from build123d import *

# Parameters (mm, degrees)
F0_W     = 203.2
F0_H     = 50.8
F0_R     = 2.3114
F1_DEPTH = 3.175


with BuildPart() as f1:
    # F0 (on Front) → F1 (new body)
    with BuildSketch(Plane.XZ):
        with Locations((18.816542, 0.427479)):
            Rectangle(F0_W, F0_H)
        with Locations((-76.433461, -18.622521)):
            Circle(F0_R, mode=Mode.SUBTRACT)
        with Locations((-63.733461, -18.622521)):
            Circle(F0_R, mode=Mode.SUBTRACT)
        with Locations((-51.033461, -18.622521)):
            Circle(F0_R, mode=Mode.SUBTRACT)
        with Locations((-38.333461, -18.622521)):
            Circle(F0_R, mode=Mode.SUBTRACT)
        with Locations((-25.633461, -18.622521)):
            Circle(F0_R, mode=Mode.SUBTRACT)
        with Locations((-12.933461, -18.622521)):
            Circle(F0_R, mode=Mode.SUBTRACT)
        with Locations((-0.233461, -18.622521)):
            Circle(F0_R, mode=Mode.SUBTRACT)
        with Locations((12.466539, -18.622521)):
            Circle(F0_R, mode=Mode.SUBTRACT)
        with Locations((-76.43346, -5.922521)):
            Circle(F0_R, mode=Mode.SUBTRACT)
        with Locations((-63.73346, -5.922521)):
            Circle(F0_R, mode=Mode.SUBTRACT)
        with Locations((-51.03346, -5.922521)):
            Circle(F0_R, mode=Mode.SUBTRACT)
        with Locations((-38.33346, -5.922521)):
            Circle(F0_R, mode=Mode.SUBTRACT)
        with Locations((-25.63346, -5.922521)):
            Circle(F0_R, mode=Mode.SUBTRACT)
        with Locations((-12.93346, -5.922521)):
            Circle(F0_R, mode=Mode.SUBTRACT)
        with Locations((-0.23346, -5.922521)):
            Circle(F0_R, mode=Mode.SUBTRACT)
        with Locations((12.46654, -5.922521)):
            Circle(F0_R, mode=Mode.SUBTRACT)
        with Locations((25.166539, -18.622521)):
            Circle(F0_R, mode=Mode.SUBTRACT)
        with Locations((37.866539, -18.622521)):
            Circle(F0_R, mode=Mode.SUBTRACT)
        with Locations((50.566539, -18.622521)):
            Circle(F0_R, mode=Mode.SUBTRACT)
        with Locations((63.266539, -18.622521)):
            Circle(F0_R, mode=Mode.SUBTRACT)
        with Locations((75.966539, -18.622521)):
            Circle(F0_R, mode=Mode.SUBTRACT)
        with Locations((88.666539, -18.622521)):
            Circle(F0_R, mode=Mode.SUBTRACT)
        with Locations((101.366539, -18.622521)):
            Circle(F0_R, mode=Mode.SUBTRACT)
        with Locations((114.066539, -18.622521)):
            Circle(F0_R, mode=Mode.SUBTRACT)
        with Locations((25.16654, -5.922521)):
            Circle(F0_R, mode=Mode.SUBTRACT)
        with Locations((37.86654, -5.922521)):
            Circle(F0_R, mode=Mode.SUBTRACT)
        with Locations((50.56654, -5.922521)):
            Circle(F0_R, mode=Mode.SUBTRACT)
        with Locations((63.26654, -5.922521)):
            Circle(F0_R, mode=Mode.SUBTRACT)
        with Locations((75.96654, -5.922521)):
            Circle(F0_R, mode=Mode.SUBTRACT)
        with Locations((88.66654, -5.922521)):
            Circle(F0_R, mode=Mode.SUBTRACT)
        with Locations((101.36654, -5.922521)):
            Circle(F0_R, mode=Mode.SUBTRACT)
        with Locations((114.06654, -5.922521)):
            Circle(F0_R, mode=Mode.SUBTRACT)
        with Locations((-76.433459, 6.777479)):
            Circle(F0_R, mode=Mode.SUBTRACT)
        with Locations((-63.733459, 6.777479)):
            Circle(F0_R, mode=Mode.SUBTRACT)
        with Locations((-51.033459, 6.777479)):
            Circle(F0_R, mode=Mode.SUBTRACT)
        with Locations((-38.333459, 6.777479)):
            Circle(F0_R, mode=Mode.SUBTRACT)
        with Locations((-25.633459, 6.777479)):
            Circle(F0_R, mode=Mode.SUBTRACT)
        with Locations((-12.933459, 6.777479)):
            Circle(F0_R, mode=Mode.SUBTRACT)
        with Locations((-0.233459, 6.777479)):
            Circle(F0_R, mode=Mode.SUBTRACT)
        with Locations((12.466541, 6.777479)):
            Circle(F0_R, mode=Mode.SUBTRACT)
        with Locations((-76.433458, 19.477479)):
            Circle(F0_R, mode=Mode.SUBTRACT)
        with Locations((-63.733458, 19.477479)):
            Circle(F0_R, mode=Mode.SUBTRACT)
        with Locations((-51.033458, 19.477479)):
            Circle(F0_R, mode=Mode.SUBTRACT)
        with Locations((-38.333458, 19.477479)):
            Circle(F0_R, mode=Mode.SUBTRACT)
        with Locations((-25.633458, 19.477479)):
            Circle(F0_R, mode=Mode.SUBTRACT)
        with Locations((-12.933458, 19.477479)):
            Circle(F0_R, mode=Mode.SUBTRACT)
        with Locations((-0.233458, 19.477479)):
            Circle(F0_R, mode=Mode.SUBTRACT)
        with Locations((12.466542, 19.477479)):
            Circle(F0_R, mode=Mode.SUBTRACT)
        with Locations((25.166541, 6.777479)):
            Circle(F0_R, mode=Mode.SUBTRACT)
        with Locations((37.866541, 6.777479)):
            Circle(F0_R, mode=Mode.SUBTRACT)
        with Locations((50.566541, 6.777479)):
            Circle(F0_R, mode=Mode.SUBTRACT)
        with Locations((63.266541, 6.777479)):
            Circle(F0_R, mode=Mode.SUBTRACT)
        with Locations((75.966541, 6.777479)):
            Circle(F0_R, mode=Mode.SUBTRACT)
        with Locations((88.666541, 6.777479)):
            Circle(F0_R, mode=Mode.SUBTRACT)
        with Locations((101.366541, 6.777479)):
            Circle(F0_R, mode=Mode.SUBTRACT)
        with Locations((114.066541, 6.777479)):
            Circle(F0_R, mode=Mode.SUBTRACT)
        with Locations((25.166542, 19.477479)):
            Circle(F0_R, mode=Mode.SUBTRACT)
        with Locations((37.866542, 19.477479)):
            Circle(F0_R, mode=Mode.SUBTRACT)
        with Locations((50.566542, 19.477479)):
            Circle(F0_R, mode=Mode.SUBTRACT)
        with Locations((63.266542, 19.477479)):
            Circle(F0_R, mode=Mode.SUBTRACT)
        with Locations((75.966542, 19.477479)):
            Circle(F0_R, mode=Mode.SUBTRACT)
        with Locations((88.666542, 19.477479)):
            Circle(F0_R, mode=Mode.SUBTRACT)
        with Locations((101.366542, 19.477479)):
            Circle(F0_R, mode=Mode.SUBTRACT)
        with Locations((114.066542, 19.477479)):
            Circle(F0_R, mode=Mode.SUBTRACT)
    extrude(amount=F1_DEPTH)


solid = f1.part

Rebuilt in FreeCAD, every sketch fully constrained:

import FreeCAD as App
import Part
import Sketcher
from FreeCAD import Vector
Q = App.Units.Quantity


def add_polygon(sketch, points):
    """Adds a closed chain of lines whose ends are joined by coincident constraints."""
    first, n = sketch.GeometryCount, len(points)
    for a, b in zip(points, points[1:] + points[:1]):
        sketch.addGeometry(Part.LineSegment(App.Vector(*a, 0), App.Vector(*b, 0)), False)
    for i in range(n):
        sketch.addConstraint(Sketcher.Constraint("Coincident", first + i, 2, first + (i + 1) % n, 1))

doc = App.newDocument("Part")
body = doc.addObject("PartDesign::Body", "Body")

sketch1 = body.newObject("Sketcher::SketchObject", "Sketch")
sketch1.AttachmentSupport = (doc.getObject("XZ_Plane"), [""])
sketch1.MapMode = "FlatFace"
add_polygon(sketch1, [(-82.783458, 25.827479), (-82.783458, -24.972521), (120.416542, -24.972521), (120.416542, 25.827479)])
sketch1.addGeometry(Part.Circle(Vector(-76.433461, -18.622521, 0), Vector(0, 0, 1), 2.3114), False)
sketch1.addGeometry(Part.Circle(Vector(-63.733461, -18.622521, 0), Vector(0, 0, 1), 2.3114), False)
sketch1.addGeometry(Part.Circle(Vector(-51.033461, -18.622521, 0), Vector(0, 0, 1), 2.3114), False)
sketch1.addGeometry(Part.Circle(Vector(-38.333461, -18.622521, 0), Vector(0, 0, 1), 2.3114), False)
sketch1.addGeometry(Part.Circle(Vector(-25.633461, -18.622521, 0), Vector(0, 0, 1), 2.3114), False)
sketch1.addGeometry(Part.Circle(Vector(-12.933461, -18.622521, 0), Vector(0, 0, 1), 2.3114), False)
sketch1.addGeometry(Part.Circle(Vector(-0.233461, -18.622521, 0), Vector(0, 0, 1), 2.3114), False)
sketch1.addGeometry(Part.Circle(Vector(12.466539, -18.622521, 0), Vector(0, 0, 1), 2.3114), False)
sketch1.addGeometry(Part.Circle(Vector(-76.43346, -5.922521, 0), Vector(0, 0, 1), 2.3114), False)
sketch1.addGeometry(Part.Circle(Vector(-63.73346, -5.922521, 0), Vector(0, 0, 1), 2.3114), False)
sketch1.addGeometry(Part.Circle(Vector(-51.03346, -5.922521, 0), Vector(0, 0, 1), 2.3114), False)
sketch1.addGeometry(Part.Circle(Vector(-38.33346, -5.922521, 0), Vector(0, 0, 1), 2.3114), False)
sketch1.addGeometry(Part.Circle(Vector(-25.63346, -5.922521, 0), Vector(0, 0, 1), 2.3114), False)
sketch1.addGeometry(Part.Circle(Vector(-12.93346, -5.922521, 0), Vector(0, 0, 1), 2.3114), False)
sketch1.addGeometry(Part.Circle(Vector(-0.23346, -5.922521, 0), Vector(0, 0, 1), 2.3114), False)
sketch1.addGeometry(Part.Circle(Vector(12.46654, -5.922521, 0), Vector(0, 0, 1), 2.3114), False)
sketch1.addGeometry(Part.Circle(Vector(25.166539, -18.622521, 0), Vector(0, 0, 1), 2.3114), False)
sketch1.addGeometry(Part.Circle(Vector(37.866539, -18.622521, 0), Vector(0, 0, 1), 2.3114), False)
sketch1.addGeometry(Part.Circle(Vector(50.566539, -18.622521, 0), Vector(0, 0, 1), 2.3114), False)
sketch1.addGeometry(Part.Circle(Vector(63.266539, -18.622521, 0), Vector(0, 0, 1), 2.3114), False)
sketch1.addGeometry(Part.Circle(Vector(75.966539, -18.622521, 0), Vector(0, 0, 1), 2.3114), False)
sketch1.addGeometry(Part.Circle(Vector(88.666539, -18.622521, 0), Vector(0, 0, 1), 2.3114), False)
sketch1.addGeometry(Part.Circle(Vector(101.366539, -18.622521, 0), Vector(0, 0, 1), 2.3114), False)
sketch1.addGeometry(Part.Circle(Vector(114.066539, -18.622521, 0), Vector(0, 0, 1), 2.3114), False)
sketch1.addGeometry(Part.Circle(Vector(25.16654, -5.922521, 0), Vector(0, 0, 1), 2.3114), False)
sketch1.addGeometry(Part.Circle(Vector(37.86654, -5.922521, 0), Vector(0, 0, 1), 2.3114), False)
sketch1.addGeometry(Part.Circle(Vector(50.56654, -5.922521, 0), Vector(0, 0, 1), 2.3114), False)
sketch1.addGeometry(Part.Circle(Vector(63.26654, -5.922521, 0), Vector(0, 0, 1), 2.3114), False)
sketch1.addGeometry(Part.Circle(Vector(75.96654, -5.922521, 0), Vector(0, 0, 1), 2.3114), False)
sketch1.addGeometry(Part.Circle(Vector(88.66654, -5.922521, 0), Vector(0, 0, 1), 2.3114), False)
sketch1.addGeometry(Part.Circle(Vector(101.36654, -5.922521, 0), Vector(0, 0, 1), 2.3114), False)
sketch1.addGeometry(Part.Circle(Vector(114.06654, -5.922521, 0), Vector(0, 0, 1), 2.3114), False)
sketch1.addGeometry(Part.Circle(Vector(-76.433459, 6.777479, 0), Vector(0, 0, 1), 2.3114), False)
sketch1.addGeometry(Part.Circle(Vector(-63.733459, 6.777479, 0), Vector(0, 0, 1), 2.3114), False)
sketch1.addGeometry(Part.Circle(Vector(-51.033459, 6.777479, 0), Vector(0, 0, 1), 2.3114), False)
sketch1.addGeometry(Part.Circle(Vector(-38.333459, 6.777479, 0), Vector(0, 0, 1), 2.3114), False)
sketch1.addGeometry(Part.Circle(Vector(-25.633459, 6.777479, 0), Vector(0, 0, 1), 2.3114), False)
sketch1.addGeometry(Part.Circle(Vector(-12.933459, 6.777479, 0), Vector(0, 0, 1), 2.3114), False)
sketch1.addGeometry(Part.Circle(Vector(-0.233459, 6.777479, 0), Vector(0, 0, 1), 2.3114), False)
sketch1.addGeometry(Part.Circle(Vector(12.466541, 6.777479, 0), Vector(0, 0, 1), 2.3114), False)
sketch1.addGeometry(Part.Circle(Vector(-76.433458, 19.477479, 0), Vector(0, 0, 1), 2.3114), False)
sketch1.addGeometry(Part.Circle(Vector(-63.733458, 19.477479, 0), Vector(0, 0, 1), 2.3114), False)
sketch1.addGeometry(Part.Circle(Vector(-51.033458, 19.477479, 0), Vector(0, 0, 1), 2.3114), False)
sketch1.addGeometry(Part.Circle(Vector(-38.333458, 19.477479, 0), Vector(0, 0, 1), 2.3114), False)
sketch1.addGeometry(Part.Circle(Vector(-25.633458, 19.477479, 0), Vector(0, 0, 1), 2.3114), False)
sketch1.addGeometry(Part.Circle(Vector(-12.933458, 19.477479, 0), Vector(0, 0, 1), 2.3114), False)
sketch1.addGeometry(Part.Circle(Vector(-0.233458, 19.477479, 0), Vector(0, 0, 1), 2.3114), False)
sketch1.addGeometry(Part.Circle(Vector(12.466542, 19.477479, 0), Vector(0, 0, 1), 2.3114), False)
sketch1.addGeometry(Part.Circle(Vector(25.166541, 6.777479, 0), Vector(0, 0, 1), 2.3114), False)
sketch1.addGeometry(Part.Circle(Vector(37.866541, 6.777479, 0), Vector(0, 0, 1), 2.3114), False)
sketch1.addGeometry(Part.Circle(Vector(50.566541, 6.777479, 0), Vector(0, 0, 1), 2.3114), False)
sketch1.addGeometry(Part.Circle(Vector(63.266541, 6.777479, 0), Vector(0, 0, 1), 2.3114), False)
sketch1.addGeometry(Part.Circle(Vector(75.966541, 6.777479, 0), Vector(0, 0, 1), 2.3114), False)
sketch1.addGeometry(Part.Circle(Vector(88.666541, 6.777479, 0), Vector(0, 0, 1), 2.3114), False)
sketch1.addGeometry(Part.Circle(Vector(101.366541, 6.777479, 0), Vector(0, 0, 1), 2.3114), False)
sketch1.addGeometry(Part.Circle(Vector(114.066541, 6.777479, 0), Vector(0, 0, 1), 2.3114), False)
sketch1.addGeometry(Part.Circle(Vector(25.166542, 19.477479, 0), Vector(0, 0, 1), 2.3114), False)
sketch1.addGeometry(Part.Circle(Vector(37.866542, 19.477479, 0), Vector(0, 0, 1), 2.3114), False)
sketch1.addGeometry(Part.Circle(Vector(50.566542, 19.477479, 0), Vector(0, 0, 1), 2.3114), False)
sketch1.addGeometry(Part.Circle(Vector(63.266542, 19.477479, 0), Vector(0, 0, 1), 2.3114), False)
sketch1.addGeometry(Part.Circle(Vector(75.966542, 19.477479, 0), Vector(0, 0, 1), 2.3114), False)
sketch1.addGeometry(Part.Circle(Vector(88.666542, 19.477479, 0), Vector(0, 0, 1), 2.3114), False)
sketch1.addGeometry(Part.Circle(Vector(101.366542, 19.477479, 0), Vector(0, 0, 1), 2.3114), False)
sketch1.addGeometry(Part.Circle(Vector(114.066542, 19.477479, 0), Vector(0, 0, 1), 2.3114), False)
sketch1.addConstraint([
    Sketcher.Constraint("Vertical", 0),
    Sketcher.Constraint("Horizontal", 1),
    Sketcher.Constraint("Vertical", 2),
    Sketcher.Constraint("Horizontal", 3),
    Sketcher.Constraint("Equal", 4, 5),
    Sketcher.Constraint("Equal", 5, 6),
    Sketcher.Constraint("Equal", 6, 7),
    Sketcher.Constraint("Equal", 7, 8),
    Sketcher.Constraint("Equal", 8, 9),
    Sketcher.Constraint("Equal", 9, 10),
    Sketcher.Constraint("Equal", 10, 11),
    Sketcher.Constraint("Equal", 11, 12),
    Sketcher.Constraint("Equal", 12, 13),
    Sketcher.Constraint("Equal", 13, 14),
    Sketcher.Constraint("Equal", 14, 15),
    Sketcher.Constraint("Equal", 15, 16),
    Sketcher.Constraint("Equal", 16, 17),
    Sketcher.Constraint("Equal", 17, 18),
    Sketcher.Constraint("Equal", 18, 19),
    Sketcher.Constraint("Equal", 19, 20),
    Sketcher.Constraint("Equal", 20, 21),
    Sketcher.Constraint("Equal", 21, 22),
    Sketcher.Constraint("Equal", 22, 23),
    Sketcher.Constraint("Equal", 23, 24),
    Sketcher.Constraint("Equal", 24, 25),
    Sketcher.Constraint("Equal", 25, 26),
    Sketcher.Constraint("Equal", 26, 27),
    Sketcher.Constraint("Equal", 27, 28),
    Sketcher.Constraint("Equal", 28, 29),
    Sketcher.Constraint("Equal", 29, 30),
    Sketcher.Constraint("Equal", 30, 31),
    Sketcher.Constraint("Equal", 31, 32),
    Sketcher.Constraint("Equal", 32, 33),
    Sketcher.Constraint("Equal", 33, 34),
    Sketcher.Constraint("Equal", 34, 35),
    Sketcher.Constraint("Equal", 35, 36),
    Sketcher.Constraint("Equal", 36, 37),
    Sketcher.Constraint("Equal", 37, 38),
    Sketcher.Constraint("Equal", 38, 39),
    Sketcher.Constraint("Equal", 39, 40),
    Sketcher.Constraint("Equal", 40, 41),
    Sketcher.Constraint("Equal", 41, 42),
    Sketcher.Constraint("Equal", 42, 43),
    Sketcher.Constraint("Equal", 43, 44),
    Sketcher.Constraint("Equal", 44, 45),
    Sketcher.Constraint("Equal", 45, 46),
    Sketcher.Constraint("Equal", 46, 47),
    Sketcher.Constraint("Equal", 47, 48),
    Sketcher.Constraint("Equal", 48, 49),
    Sketcher.Constraint("Equal", 49, 50),
    Sketcher.Constraint("Equal", 50, 51),
    Sketcher.Constraint("Equal", 51, 52),
    Sketcher.Constraint("Equal", 52, 53),
    Sketcher.Constraint("Equal", 53, 54),
    Sketcher.Constraint("Equal", 54, 55),
    Sketcher.Constraint("Equal", 55, 56),
    Sketcher.Constraint("Equal", 56, 57),
    Sketcher.Constraint("Equal", 57, 58),
    Sketcher.Constraint("Equal", 58, 59),
    Sketcher.Constraint("Equal", 59, 60),
    Sketcher.Constraint("Equal", 60, 61),
    Sketcher.Constraint("Equal", 61, 62),
    Sketcher.Constraint("Equal", 62, 63),
    Sketcher.Constraint("Equal", 63, 64),
    Sketcher.Constraint("Equal", 64, 65),
    Sketcher.Constraint("Equal", 65, 66),
    Sketcher.Constraint("Equal", 66, 67),
    Sketcher.Constraint("Horizontal", 4, 3, 5, 3),
    Sketcher.Constraint("Horizontal", 5, 3, 6, 3),
    Sketcher.Constraint("Horizontal", 6, 3, 7, 3),
    Sketcher.Constraint("Horizontal", 7, 3, 8, 3),
    Sketcher.Constraint("Horizontal", 8, 3, 9, 3),
    Sketcher.Constraint("Horizontal", 9, 3, 10, 3),
    Sketcher.Constraint("Horizontal", 10, 3, 11, 3),
    Sketcher.Constraint("Horizontal", 12, 3, 13, 3),
    Sketcher.Constraint("Horizontal", 13, 3, 14, 3),
    Sketcher.Constraint("Horizontal", 14, 3, 15, 3),
    Sketcher.Constraint("Horizontal", 15, 3, 16, 3),
    Sketcher.Constraint("Horizontal", 16, 3, 17, 3),
    Sketcher.Constraint("Horizontal", 17, 3, 18, 3),
    Sketcher.Constraint("Horizontal", 18, 3, 19, 3),
    Sketcher.Constraint("Horizontal", 11, 3, 20, 3),
    Sketcher.Constraint("Horizontal", 20, 3, 21, 3),
    Sketcher.Constraint("Horizontal", 21, 3, 22, 3),
    Sketcher.Constraint("Horizontal", 22, 3, 23, 3),
    Sketcher.Constraint("Horizontal", 23, 3, 24, 3),
    Sketcher.Constraint("Horizontal", 24, 3, 25, 3),
    Sketcher.Constraint("Horizontal", 25, 3, 26, 3),
    Sketcher.Constraint("Horizontal", 26, 3, 27, 3),
    Sketcher.Constraint("Horizontal", 19, 3, 28, 3),
    Sketcher.Constraint("Horizontal", 28, 3, 29, 3),
    Sketcher.Constraint("Horizontal", 29, 3, 30, 3),
    Sketcher.Constraint("Horizontal", 30, 3, 31, 3),
    Sketcher.Constraint("Horizontal", 31, 3, 32, 3),
    Sketcher.Constraint("Horizontal", 32, 3, 33, 3),
    Sketcher.Constraint("Horizontal", 33, 3, 34, 3),
    Sketcher.Constraint("Horizontal", 34, 3, 35, 3),
    Sketcher.Constraint("Horizontal", 36, 3, 37, 3),
    Sketcher.Constraint("Horizontal", 37, 3, 38, 3),
    Sketcher.Constraint("Horizontal", 38, 3, 39, 3),
    Sketcher.Constraint("Horizontal", 39, 3, 40, 3),
    Sketcher.Constraint("Horizontal", 40, 3, 41, 3),
    Sketcher.Constraint("Horizontal", 41, 3, 42, 3),
    Sketcher.Constraint("Horizontal", 42, 3, 43, 3),
    Sketcher.Constraint("Horizontal", 44, 3, 45, 3),
    Sketcher.Constraint("Horizontal", 45, 3, 46, 3),
    Sketcher.Constraint("Horizontal", 46, 3, 47, 3),
    Sketcher.Constraint("Horizontal", 47, 3, 48, 3),
    Sketcher.Constraint("Horizontal", 48, 3, 49, 3),
    Sketcher.Constraint("Horizontal", 49, 3, 50, 3),
    Sketcher.Constraint("Horizontal", 50, 3, 51, 3),
    Sketcher.Constraint("Horizontal", 43, 3, 52, 3),
    Sketcher.Constraint("Horizontal", 52, 3, 53, 3),
    Sketcher.Constraint("Horizontal", 53, 3, 54, 3),
    Sketcher.Constraint("Horizontal", 54, 3, 55, 3),
    Sketcher.Constraint("Horizontal", 55, 3, 56, 3),
    Sketcher.Constraint("Horizontal", 56, 3, 57, 3),
    Sketcher.Constraint("Horizontal", 57, 3, 58, 3),
    Sketcher.Constraint("Horizontal", 58, 3, 59, 3),
    Sketcher.Constraint("Horizontal", 51, 3, 60, 3),
    Sketcher.Constraint("Horizontal", 60, 3, 61, 3),
    Sketcher.Constraint("Horizontal", 61, 3, 62, 3),
    Sketcher.Constraint("Horizontal", 62, 3, 63, 3),
    Sketcher.Constraint("Horizontal", 63, 3, 64, 3),
    Sketcher.Constraint("Horizontal", 64, 3, 65, 3),
    Sketcher.Constraint("Horizontal", 65, 3, 66, 3),
    Sketcher.Constraint("Horizontal", 66, 3, 67, 3),
    Sketcher.Constraint("Vertical", 4, 3, 12, 3),
    Sketcher.Constraint("Vertical", 5, 3, 13, 3),
    Sketcher.Constraint("Vertical", 6, 3, 14, 3),
    Sketcher.Constraint("Vertical", 7, 3, 15, 3),
    Sketcher.Constraint("Vertical", 8, 3, 16, 3),
    Sketcher.Constraint("Vertical", 9, 3, 17, 3),
    Sketcher.Constraint("Vertical", 10, 3, 18, 3),
    Sketcher.Constraint("Vertical", 11, 3, 19, 3),
    Sketcher.Constraint("Vertical", 20, 3, 28, 3),
    Sketcher.Constraint("Vertical", 21, 3, 29, 3),
    Sketcher.Constraint("Vertical", 22, 3, 30, 3),
    Sketcher.Constraint("Vertical", 23, 3, 31, 3),
    Sketcher.Constraint("Vertical", 24, 3, 32, 3),
    Sketcher.Constraint("Vertical", 25, 3, 33, 3),
    Sketcher.Constraint("Vertical", 26, 3, 34, 3),
    Sketcher.Constraint("Vertical", 27, 3, 35, 3),
    Sketcher.Constraint("Vertical", 12, 3, 36, 3),
    Sketcher.Constraint("Vertical", 13, 3, 37, 3),
    Sketcher.Constraint("Vertical", 14, 3, 38, 3),
    Sketcher.Constraint("Vertical", 15, 3, 39, 3),
    Sketcher.Constraint("Vertical", 16, 3, 40, 3),
    Sketcher.Constraint("Vertical", 17, 3, 41, 3),
    Sketcher.Constraint("Vertical", 18, 3, 42, 3),
    Sketcher.Constraint("Vertical", 19, 3, 43, 3),
    Sketcher.Constraint("Vertical", 36, 3, 44, 3),
    Sketcher.Constraint("Vertical", 37, 3, 45, 3),
    Sketcher.Constraint("Vertical", 38, 3, 46, 3),
    Sketcher.Constraint("Vertical", 39, 3, 47, 3),
    Sketcher.Constraint("Vertical", 40, 3, 48, 3),
    Sketcher.Constraint("Vertical", 41, 3, 49, 3),
    Sketcher.Constraint("Vertical", 42, 3, 50, 3),
    Sketcher.Constraint("Vertical", 43, 3, 51, 3),
    Sketcher.Constraint("Vertical", 28, 3, 52, 3),
    Sketcher.Constraint("Vertical", 29, 3, 53, 3),
    Sketcher.Constraint("Vertical", 30, 3, 54, 3),
    Sketcher.Constraint("Vertical", 31, 3, 55, 3),
    Sketcher.Constraint("Vertical", 32, 3, 56, 3),
    Sketcher.Constraint("Vertical", 33, 3, 57, 3),
    Sketcher.Constraint("Vertical", 34, 3, 58, 3),
    Sketcher.Constraint("Vertical", 35, 3, 59, 3),
    Sketcher.Constraint("Vertical", 52, 3, 60, 3),
    Sketcher.Constraint("Vertical", 53, 3, 61, 3),
    Sketcher.Constraint("Vertical", 54, 3, 62, 3),
    Sketcher.Constraint("Vertical", 55, 3, 63, 3),
    Sketcher.Constraint("Vertical", 56, 3, 64, 3),
    Sketcher.Constraint("Vertical", 57, 3, 65, 3),
    Sketcher.Constraint("Vertical", 58, 3, 66, 3),
    Sketcher.Constraint("Vertical", 59, 3, 67, 3),
    Sketcher.Constraint("DistanceX", 1, 1, 1, 2, Q("8 in")),
    Sketcher.Constraint("DistanceY", 0, 2, 0, 1, Q("2 in")),
    Sketcher.Constraint("Diameter", 4, Q("0.182 in")),
    Sketcher.Constraint("DistanceX", 4, 3, -1, 1, 76.433461),
    Sketcher.Constraint("DistanceY", 4, 3, -1, 1, 18.622521),
    Sketcher.Constraint("DistanceX", 5, 3, -1, 1, 63.733461),
    Sketcher.Constraint("DistanceX", 6, 3, -1, 1, 51.033461),
    Sketcher.Constraint("DistanceX", 7, 3, -1, 1, 38.333461),
    Sketcher.Constraint("DistanceX", 8, 3, -1, 1, 25.633461),
    Sketcher.Constraint("DistanceX", 9, 3, -1, 1, 12.933461),
    Sketcher.Constraint("DistanceX", 10, 3, -1, 1, 0.233461),
    Sketcher.Constraint("DistanceX", -1, 1, 11, 3, 12.466539),
    Sketcher.Constraint("DistanceY", 12, 3, -1, 1, 5.922521),
    Sketcher.Constraint("DistanceX", -1, 1, 20, 3, 25.166539),
    Sketcher.Constraint("DistanceX", -1, 1, 21, 3, 37.866539),
    Sketcher.Constraint("DistanceX", -1, 1, 22, 3, 50.566539),
    Sketcher.Constraint("DistanceX", -1, 1, 23, 3, 63.266539),
    Sketcher.Constraint("DistanceX", -1, 1, 24, 3, 75.966539),
    Sketcher.Constraint("DistanceX", -1, 1, 25, 3, 88.666539),
    Sketcher.Constraint("DistanceX", -1, 1, 26, 3, 101.366539),
    Sketcher.Constraint("DistanceX", -1, 1, 27, 3, 114.066539),
    Sketcher.Constraint("DistanceY", -1, 1, 36, 3, 6.777479),
    Sketcher.Constraint("DistanceY", -1, 1, 44, 3, 19.477479),
    Sketcher.Constraint("DistanceY", 0, 2, -1, 1, 24.972521),
    Sketcher.Constraint("DistanceX", 0, 2, -1, 1, 82.783458),
])
pad1 = body.newObject("PartDesign::Pad", "Pad")
pad1.Profile = sketch1
pad1.Length = Q("0.125 in")

doc.recompute()
